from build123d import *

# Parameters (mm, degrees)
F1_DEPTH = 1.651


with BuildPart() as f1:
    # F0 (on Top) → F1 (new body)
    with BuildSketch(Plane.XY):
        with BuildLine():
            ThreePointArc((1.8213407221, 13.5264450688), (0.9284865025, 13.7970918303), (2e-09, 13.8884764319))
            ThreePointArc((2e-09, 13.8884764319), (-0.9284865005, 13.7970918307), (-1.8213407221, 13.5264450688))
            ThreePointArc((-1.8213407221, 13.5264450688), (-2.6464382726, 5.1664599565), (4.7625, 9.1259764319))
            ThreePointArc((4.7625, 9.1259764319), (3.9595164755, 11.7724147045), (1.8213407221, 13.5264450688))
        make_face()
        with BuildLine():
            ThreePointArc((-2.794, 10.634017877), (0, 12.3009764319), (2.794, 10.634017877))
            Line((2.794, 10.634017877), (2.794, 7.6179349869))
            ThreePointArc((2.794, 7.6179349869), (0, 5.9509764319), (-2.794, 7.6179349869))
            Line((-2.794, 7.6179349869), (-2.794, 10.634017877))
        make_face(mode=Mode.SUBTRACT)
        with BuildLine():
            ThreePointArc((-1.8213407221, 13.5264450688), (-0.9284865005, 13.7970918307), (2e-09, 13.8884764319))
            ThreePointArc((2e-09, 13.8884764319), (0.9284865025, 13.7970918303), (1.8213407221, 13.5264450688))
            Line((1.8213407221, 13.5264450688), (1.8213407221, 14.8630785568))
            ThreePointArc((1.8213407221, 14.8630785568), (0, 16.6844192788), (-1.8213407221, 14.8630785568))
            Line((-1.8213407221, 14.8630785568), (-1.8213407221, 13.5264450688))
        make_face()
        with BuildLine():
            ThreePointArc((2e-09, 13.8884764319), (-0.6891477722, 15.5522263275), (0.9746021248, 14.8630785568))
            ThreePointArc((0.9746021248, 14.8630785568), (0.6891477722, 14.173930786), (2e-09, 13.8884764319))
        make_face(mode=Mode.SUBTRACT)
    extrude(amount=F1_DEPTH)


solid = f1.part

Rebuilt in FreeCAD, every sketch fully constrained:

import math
import FreeCAD as App
import Part
import Sketcher
from FreeCAD import Vector
Q = App.Units.Quantity

doc = App.newDocument("Part")
body = doc.addObject("PartDesign::Body", "Body")

# Sketch on XY plane
sketch1 = body.newObject("Sketcher::SketchObject", "Sketch")
sketch1.AttachmentSupport = (doc.getObject("XY_Plane"), [""])
sketch1.MapMode = "FlatFace"
sketch1.addGeometry(Part.ArcOfCircle(Part.Circle(Vector(0, 9.1, 0), Vector(0, 0, 1), 4.8), math.radians(0), math.radians(68)), False)
sketch1.addGeometry(Part.LineSegment(Vector(1.8, 13.5, 0), Vector(1.8, 14.9, 0)), False)
sketch1.addGeometry(Part.ArcOfCircle(Part.Circle(Vector(0, 14.9, 0), Vector(0, 0, 1), 1.8), math.radians(0), math.radians(180)), False)
sketch1.addGeometry(Part.LineSegment(Vector(-1.8, 14.9, 0), Vector(-1.8, 13.5, 0)), False)
sketch1.addGeometry(Part.ArcOfCircle(Part.Circle(Vector(0, 9.1, 0), Vector(0, 0, 1), 4.8), math.radians(112), math.radians(360)), False)
sketch1.addGeometry(Part.LineSegment(Vector(-2.8, 7.6, 0), Vector(-2.8, 10.6, 0)), False)
sketch1.addGeometry(Part.ArcOfCircle(Part.Circle(Vector(0, 9.1, 0), Vector(0, 0, 1), 3.2), math.radians(28), math.radians(152)), False)
sketch1.addGeometry(Part.LineSegment(Vector(2.8, 10.6, 0), Vector(2.8, 7.6, 0)), False)
sketch1.addGeometry(Part.ArcOfCircle(Part.Circle(Vector(0, 9.1, 0), Vector(0, 0, 1), 3.2), math.radians(-152), math.radians(-28)), False)
sketch1.addGeometry(Part.ArcOfCircle(Part.Circle(Vector(0, 14.9, 0), Vector(0, 0, 1), 1), math.radians(-90), math.radians(0)), False)
sketch1.addGeometry(Part.ArcOfCircle(Part.Circle(Vector(0, 14.9, 0), Vector(0, 0, 1), 1), math.radians(0), math.radians(270)), False)
sketch1.addConstraint(Sketcher.Constraint("Coincident", 0, 2, 1, 1))
sketch1.addConstraint(Sketcher.Constraint("Tangent", 1, 2, 2, 1))
sketch1.addConstraint(Sketcher.Constraint("Tangent", 2, 2, 3, 1))
sketch1.addConstraint(Sketcher.Constraint("Coincident", 3, 2, 4, 1))
sketch1.addConstraint(Sketcher.Constraint("Tangent", 4, 2, 0, 1))
sketch1.addConstraint(Sketcher.Constraint("Coincident", 5, 2, 6, 2))
sketch1.addConstraint(Sketcher.Constraint("Coincident", 6, 1, 7, 1))
sketch1.addConstraint(Sketcher.Constraint("Coincident", 7, 2, 8, 2))
sketch1.addConstraint(Sketcher.Constraint("Coincident", 8, 1, 5, 1))
sketch1.addConstraint(Sketcher.Constraint("Tangent", 9, 1, 10, 2))
sketch1.addConstraint(Sketcher.Constraint("Coincident", 10, 1, 9, 2))
sketch1.addConstraint(Sketcher.Constraint("Vertical", 1))
sketch1.addConstraint(Sketcher.Constraint("Vertical", 3))
sketch1.addConstraint(Sketcher.Constraint("Vertical", 5))
sketch1.addConstraint(Sketcher.Constraint("Vertical", 7))
sketch1.addConstraint(Sketcher.Constraint("Coincident", 6, 3, 0, 3))
sketch1.addConstraint(Sketcher.Constraint("Coincident", 8, 3, 0, 3))
sketch1.addConstraint(Sketcher.Constraint("Coincident", 9, 3, 2, 3))
sketch1.addConstraint(Sketcher.Constraint("Equal", 0, 4))
sketch1.addConstraint(Sketcher.Constraint("Equal", 6, 8))
sketch1.addConstraint(Sketcher.Constraint("Symmetric", 0, 2, 3, 2, -2))
sketch1.addConstraint(Sketcher.Constraint("PointOnObject", 9, 1, -2))
sketch1.addConstraint(Sketcher.Constraint("Horizontal", 8, 3, 4, 2))
sketch1.addConstraint(Sketcher.Constraint("Horizontal", 5, 2, 6, 1))
sketch1.addConstraint(Sketcher.Constraint("Horizontal", 2, 2, 10, 1))
sketch1.addConstraint(Sketcher.Constraint("Radius", 0, Q("0.1875 in")))
sketch1.addConstraint(Sketcher.Constraint("Radius", 6, Q("0.125 in")))
sketch1.addConstraint(Sketcher.Constraint("DistanceX", 5, 2, -1, 1, Q("0.11 in")))
sketch1.addConstraint(Sketcher.Constraint("Radius", 2, Q("1.821341 mm")))
sketch1.addConstraint(Sketcher.Constraint("Radius", 9, Q("0.974602 mm")))
sketch1.addConstraint(Sketcher.Constraint("DistanceY", 1, 1, 1, 2, Q("1.336633 mm")))
sketch1.addConstraint(Sketcher.Constraint("DistanceY", -1, 1, 2, 3, Q("14.863079 mm")))
pad1 = body.newObject("PartDesign::Pad", "Pad")
pad1.Profile = sketch1
pad1.Length = Q("0.065 in")

doc.recompute()
